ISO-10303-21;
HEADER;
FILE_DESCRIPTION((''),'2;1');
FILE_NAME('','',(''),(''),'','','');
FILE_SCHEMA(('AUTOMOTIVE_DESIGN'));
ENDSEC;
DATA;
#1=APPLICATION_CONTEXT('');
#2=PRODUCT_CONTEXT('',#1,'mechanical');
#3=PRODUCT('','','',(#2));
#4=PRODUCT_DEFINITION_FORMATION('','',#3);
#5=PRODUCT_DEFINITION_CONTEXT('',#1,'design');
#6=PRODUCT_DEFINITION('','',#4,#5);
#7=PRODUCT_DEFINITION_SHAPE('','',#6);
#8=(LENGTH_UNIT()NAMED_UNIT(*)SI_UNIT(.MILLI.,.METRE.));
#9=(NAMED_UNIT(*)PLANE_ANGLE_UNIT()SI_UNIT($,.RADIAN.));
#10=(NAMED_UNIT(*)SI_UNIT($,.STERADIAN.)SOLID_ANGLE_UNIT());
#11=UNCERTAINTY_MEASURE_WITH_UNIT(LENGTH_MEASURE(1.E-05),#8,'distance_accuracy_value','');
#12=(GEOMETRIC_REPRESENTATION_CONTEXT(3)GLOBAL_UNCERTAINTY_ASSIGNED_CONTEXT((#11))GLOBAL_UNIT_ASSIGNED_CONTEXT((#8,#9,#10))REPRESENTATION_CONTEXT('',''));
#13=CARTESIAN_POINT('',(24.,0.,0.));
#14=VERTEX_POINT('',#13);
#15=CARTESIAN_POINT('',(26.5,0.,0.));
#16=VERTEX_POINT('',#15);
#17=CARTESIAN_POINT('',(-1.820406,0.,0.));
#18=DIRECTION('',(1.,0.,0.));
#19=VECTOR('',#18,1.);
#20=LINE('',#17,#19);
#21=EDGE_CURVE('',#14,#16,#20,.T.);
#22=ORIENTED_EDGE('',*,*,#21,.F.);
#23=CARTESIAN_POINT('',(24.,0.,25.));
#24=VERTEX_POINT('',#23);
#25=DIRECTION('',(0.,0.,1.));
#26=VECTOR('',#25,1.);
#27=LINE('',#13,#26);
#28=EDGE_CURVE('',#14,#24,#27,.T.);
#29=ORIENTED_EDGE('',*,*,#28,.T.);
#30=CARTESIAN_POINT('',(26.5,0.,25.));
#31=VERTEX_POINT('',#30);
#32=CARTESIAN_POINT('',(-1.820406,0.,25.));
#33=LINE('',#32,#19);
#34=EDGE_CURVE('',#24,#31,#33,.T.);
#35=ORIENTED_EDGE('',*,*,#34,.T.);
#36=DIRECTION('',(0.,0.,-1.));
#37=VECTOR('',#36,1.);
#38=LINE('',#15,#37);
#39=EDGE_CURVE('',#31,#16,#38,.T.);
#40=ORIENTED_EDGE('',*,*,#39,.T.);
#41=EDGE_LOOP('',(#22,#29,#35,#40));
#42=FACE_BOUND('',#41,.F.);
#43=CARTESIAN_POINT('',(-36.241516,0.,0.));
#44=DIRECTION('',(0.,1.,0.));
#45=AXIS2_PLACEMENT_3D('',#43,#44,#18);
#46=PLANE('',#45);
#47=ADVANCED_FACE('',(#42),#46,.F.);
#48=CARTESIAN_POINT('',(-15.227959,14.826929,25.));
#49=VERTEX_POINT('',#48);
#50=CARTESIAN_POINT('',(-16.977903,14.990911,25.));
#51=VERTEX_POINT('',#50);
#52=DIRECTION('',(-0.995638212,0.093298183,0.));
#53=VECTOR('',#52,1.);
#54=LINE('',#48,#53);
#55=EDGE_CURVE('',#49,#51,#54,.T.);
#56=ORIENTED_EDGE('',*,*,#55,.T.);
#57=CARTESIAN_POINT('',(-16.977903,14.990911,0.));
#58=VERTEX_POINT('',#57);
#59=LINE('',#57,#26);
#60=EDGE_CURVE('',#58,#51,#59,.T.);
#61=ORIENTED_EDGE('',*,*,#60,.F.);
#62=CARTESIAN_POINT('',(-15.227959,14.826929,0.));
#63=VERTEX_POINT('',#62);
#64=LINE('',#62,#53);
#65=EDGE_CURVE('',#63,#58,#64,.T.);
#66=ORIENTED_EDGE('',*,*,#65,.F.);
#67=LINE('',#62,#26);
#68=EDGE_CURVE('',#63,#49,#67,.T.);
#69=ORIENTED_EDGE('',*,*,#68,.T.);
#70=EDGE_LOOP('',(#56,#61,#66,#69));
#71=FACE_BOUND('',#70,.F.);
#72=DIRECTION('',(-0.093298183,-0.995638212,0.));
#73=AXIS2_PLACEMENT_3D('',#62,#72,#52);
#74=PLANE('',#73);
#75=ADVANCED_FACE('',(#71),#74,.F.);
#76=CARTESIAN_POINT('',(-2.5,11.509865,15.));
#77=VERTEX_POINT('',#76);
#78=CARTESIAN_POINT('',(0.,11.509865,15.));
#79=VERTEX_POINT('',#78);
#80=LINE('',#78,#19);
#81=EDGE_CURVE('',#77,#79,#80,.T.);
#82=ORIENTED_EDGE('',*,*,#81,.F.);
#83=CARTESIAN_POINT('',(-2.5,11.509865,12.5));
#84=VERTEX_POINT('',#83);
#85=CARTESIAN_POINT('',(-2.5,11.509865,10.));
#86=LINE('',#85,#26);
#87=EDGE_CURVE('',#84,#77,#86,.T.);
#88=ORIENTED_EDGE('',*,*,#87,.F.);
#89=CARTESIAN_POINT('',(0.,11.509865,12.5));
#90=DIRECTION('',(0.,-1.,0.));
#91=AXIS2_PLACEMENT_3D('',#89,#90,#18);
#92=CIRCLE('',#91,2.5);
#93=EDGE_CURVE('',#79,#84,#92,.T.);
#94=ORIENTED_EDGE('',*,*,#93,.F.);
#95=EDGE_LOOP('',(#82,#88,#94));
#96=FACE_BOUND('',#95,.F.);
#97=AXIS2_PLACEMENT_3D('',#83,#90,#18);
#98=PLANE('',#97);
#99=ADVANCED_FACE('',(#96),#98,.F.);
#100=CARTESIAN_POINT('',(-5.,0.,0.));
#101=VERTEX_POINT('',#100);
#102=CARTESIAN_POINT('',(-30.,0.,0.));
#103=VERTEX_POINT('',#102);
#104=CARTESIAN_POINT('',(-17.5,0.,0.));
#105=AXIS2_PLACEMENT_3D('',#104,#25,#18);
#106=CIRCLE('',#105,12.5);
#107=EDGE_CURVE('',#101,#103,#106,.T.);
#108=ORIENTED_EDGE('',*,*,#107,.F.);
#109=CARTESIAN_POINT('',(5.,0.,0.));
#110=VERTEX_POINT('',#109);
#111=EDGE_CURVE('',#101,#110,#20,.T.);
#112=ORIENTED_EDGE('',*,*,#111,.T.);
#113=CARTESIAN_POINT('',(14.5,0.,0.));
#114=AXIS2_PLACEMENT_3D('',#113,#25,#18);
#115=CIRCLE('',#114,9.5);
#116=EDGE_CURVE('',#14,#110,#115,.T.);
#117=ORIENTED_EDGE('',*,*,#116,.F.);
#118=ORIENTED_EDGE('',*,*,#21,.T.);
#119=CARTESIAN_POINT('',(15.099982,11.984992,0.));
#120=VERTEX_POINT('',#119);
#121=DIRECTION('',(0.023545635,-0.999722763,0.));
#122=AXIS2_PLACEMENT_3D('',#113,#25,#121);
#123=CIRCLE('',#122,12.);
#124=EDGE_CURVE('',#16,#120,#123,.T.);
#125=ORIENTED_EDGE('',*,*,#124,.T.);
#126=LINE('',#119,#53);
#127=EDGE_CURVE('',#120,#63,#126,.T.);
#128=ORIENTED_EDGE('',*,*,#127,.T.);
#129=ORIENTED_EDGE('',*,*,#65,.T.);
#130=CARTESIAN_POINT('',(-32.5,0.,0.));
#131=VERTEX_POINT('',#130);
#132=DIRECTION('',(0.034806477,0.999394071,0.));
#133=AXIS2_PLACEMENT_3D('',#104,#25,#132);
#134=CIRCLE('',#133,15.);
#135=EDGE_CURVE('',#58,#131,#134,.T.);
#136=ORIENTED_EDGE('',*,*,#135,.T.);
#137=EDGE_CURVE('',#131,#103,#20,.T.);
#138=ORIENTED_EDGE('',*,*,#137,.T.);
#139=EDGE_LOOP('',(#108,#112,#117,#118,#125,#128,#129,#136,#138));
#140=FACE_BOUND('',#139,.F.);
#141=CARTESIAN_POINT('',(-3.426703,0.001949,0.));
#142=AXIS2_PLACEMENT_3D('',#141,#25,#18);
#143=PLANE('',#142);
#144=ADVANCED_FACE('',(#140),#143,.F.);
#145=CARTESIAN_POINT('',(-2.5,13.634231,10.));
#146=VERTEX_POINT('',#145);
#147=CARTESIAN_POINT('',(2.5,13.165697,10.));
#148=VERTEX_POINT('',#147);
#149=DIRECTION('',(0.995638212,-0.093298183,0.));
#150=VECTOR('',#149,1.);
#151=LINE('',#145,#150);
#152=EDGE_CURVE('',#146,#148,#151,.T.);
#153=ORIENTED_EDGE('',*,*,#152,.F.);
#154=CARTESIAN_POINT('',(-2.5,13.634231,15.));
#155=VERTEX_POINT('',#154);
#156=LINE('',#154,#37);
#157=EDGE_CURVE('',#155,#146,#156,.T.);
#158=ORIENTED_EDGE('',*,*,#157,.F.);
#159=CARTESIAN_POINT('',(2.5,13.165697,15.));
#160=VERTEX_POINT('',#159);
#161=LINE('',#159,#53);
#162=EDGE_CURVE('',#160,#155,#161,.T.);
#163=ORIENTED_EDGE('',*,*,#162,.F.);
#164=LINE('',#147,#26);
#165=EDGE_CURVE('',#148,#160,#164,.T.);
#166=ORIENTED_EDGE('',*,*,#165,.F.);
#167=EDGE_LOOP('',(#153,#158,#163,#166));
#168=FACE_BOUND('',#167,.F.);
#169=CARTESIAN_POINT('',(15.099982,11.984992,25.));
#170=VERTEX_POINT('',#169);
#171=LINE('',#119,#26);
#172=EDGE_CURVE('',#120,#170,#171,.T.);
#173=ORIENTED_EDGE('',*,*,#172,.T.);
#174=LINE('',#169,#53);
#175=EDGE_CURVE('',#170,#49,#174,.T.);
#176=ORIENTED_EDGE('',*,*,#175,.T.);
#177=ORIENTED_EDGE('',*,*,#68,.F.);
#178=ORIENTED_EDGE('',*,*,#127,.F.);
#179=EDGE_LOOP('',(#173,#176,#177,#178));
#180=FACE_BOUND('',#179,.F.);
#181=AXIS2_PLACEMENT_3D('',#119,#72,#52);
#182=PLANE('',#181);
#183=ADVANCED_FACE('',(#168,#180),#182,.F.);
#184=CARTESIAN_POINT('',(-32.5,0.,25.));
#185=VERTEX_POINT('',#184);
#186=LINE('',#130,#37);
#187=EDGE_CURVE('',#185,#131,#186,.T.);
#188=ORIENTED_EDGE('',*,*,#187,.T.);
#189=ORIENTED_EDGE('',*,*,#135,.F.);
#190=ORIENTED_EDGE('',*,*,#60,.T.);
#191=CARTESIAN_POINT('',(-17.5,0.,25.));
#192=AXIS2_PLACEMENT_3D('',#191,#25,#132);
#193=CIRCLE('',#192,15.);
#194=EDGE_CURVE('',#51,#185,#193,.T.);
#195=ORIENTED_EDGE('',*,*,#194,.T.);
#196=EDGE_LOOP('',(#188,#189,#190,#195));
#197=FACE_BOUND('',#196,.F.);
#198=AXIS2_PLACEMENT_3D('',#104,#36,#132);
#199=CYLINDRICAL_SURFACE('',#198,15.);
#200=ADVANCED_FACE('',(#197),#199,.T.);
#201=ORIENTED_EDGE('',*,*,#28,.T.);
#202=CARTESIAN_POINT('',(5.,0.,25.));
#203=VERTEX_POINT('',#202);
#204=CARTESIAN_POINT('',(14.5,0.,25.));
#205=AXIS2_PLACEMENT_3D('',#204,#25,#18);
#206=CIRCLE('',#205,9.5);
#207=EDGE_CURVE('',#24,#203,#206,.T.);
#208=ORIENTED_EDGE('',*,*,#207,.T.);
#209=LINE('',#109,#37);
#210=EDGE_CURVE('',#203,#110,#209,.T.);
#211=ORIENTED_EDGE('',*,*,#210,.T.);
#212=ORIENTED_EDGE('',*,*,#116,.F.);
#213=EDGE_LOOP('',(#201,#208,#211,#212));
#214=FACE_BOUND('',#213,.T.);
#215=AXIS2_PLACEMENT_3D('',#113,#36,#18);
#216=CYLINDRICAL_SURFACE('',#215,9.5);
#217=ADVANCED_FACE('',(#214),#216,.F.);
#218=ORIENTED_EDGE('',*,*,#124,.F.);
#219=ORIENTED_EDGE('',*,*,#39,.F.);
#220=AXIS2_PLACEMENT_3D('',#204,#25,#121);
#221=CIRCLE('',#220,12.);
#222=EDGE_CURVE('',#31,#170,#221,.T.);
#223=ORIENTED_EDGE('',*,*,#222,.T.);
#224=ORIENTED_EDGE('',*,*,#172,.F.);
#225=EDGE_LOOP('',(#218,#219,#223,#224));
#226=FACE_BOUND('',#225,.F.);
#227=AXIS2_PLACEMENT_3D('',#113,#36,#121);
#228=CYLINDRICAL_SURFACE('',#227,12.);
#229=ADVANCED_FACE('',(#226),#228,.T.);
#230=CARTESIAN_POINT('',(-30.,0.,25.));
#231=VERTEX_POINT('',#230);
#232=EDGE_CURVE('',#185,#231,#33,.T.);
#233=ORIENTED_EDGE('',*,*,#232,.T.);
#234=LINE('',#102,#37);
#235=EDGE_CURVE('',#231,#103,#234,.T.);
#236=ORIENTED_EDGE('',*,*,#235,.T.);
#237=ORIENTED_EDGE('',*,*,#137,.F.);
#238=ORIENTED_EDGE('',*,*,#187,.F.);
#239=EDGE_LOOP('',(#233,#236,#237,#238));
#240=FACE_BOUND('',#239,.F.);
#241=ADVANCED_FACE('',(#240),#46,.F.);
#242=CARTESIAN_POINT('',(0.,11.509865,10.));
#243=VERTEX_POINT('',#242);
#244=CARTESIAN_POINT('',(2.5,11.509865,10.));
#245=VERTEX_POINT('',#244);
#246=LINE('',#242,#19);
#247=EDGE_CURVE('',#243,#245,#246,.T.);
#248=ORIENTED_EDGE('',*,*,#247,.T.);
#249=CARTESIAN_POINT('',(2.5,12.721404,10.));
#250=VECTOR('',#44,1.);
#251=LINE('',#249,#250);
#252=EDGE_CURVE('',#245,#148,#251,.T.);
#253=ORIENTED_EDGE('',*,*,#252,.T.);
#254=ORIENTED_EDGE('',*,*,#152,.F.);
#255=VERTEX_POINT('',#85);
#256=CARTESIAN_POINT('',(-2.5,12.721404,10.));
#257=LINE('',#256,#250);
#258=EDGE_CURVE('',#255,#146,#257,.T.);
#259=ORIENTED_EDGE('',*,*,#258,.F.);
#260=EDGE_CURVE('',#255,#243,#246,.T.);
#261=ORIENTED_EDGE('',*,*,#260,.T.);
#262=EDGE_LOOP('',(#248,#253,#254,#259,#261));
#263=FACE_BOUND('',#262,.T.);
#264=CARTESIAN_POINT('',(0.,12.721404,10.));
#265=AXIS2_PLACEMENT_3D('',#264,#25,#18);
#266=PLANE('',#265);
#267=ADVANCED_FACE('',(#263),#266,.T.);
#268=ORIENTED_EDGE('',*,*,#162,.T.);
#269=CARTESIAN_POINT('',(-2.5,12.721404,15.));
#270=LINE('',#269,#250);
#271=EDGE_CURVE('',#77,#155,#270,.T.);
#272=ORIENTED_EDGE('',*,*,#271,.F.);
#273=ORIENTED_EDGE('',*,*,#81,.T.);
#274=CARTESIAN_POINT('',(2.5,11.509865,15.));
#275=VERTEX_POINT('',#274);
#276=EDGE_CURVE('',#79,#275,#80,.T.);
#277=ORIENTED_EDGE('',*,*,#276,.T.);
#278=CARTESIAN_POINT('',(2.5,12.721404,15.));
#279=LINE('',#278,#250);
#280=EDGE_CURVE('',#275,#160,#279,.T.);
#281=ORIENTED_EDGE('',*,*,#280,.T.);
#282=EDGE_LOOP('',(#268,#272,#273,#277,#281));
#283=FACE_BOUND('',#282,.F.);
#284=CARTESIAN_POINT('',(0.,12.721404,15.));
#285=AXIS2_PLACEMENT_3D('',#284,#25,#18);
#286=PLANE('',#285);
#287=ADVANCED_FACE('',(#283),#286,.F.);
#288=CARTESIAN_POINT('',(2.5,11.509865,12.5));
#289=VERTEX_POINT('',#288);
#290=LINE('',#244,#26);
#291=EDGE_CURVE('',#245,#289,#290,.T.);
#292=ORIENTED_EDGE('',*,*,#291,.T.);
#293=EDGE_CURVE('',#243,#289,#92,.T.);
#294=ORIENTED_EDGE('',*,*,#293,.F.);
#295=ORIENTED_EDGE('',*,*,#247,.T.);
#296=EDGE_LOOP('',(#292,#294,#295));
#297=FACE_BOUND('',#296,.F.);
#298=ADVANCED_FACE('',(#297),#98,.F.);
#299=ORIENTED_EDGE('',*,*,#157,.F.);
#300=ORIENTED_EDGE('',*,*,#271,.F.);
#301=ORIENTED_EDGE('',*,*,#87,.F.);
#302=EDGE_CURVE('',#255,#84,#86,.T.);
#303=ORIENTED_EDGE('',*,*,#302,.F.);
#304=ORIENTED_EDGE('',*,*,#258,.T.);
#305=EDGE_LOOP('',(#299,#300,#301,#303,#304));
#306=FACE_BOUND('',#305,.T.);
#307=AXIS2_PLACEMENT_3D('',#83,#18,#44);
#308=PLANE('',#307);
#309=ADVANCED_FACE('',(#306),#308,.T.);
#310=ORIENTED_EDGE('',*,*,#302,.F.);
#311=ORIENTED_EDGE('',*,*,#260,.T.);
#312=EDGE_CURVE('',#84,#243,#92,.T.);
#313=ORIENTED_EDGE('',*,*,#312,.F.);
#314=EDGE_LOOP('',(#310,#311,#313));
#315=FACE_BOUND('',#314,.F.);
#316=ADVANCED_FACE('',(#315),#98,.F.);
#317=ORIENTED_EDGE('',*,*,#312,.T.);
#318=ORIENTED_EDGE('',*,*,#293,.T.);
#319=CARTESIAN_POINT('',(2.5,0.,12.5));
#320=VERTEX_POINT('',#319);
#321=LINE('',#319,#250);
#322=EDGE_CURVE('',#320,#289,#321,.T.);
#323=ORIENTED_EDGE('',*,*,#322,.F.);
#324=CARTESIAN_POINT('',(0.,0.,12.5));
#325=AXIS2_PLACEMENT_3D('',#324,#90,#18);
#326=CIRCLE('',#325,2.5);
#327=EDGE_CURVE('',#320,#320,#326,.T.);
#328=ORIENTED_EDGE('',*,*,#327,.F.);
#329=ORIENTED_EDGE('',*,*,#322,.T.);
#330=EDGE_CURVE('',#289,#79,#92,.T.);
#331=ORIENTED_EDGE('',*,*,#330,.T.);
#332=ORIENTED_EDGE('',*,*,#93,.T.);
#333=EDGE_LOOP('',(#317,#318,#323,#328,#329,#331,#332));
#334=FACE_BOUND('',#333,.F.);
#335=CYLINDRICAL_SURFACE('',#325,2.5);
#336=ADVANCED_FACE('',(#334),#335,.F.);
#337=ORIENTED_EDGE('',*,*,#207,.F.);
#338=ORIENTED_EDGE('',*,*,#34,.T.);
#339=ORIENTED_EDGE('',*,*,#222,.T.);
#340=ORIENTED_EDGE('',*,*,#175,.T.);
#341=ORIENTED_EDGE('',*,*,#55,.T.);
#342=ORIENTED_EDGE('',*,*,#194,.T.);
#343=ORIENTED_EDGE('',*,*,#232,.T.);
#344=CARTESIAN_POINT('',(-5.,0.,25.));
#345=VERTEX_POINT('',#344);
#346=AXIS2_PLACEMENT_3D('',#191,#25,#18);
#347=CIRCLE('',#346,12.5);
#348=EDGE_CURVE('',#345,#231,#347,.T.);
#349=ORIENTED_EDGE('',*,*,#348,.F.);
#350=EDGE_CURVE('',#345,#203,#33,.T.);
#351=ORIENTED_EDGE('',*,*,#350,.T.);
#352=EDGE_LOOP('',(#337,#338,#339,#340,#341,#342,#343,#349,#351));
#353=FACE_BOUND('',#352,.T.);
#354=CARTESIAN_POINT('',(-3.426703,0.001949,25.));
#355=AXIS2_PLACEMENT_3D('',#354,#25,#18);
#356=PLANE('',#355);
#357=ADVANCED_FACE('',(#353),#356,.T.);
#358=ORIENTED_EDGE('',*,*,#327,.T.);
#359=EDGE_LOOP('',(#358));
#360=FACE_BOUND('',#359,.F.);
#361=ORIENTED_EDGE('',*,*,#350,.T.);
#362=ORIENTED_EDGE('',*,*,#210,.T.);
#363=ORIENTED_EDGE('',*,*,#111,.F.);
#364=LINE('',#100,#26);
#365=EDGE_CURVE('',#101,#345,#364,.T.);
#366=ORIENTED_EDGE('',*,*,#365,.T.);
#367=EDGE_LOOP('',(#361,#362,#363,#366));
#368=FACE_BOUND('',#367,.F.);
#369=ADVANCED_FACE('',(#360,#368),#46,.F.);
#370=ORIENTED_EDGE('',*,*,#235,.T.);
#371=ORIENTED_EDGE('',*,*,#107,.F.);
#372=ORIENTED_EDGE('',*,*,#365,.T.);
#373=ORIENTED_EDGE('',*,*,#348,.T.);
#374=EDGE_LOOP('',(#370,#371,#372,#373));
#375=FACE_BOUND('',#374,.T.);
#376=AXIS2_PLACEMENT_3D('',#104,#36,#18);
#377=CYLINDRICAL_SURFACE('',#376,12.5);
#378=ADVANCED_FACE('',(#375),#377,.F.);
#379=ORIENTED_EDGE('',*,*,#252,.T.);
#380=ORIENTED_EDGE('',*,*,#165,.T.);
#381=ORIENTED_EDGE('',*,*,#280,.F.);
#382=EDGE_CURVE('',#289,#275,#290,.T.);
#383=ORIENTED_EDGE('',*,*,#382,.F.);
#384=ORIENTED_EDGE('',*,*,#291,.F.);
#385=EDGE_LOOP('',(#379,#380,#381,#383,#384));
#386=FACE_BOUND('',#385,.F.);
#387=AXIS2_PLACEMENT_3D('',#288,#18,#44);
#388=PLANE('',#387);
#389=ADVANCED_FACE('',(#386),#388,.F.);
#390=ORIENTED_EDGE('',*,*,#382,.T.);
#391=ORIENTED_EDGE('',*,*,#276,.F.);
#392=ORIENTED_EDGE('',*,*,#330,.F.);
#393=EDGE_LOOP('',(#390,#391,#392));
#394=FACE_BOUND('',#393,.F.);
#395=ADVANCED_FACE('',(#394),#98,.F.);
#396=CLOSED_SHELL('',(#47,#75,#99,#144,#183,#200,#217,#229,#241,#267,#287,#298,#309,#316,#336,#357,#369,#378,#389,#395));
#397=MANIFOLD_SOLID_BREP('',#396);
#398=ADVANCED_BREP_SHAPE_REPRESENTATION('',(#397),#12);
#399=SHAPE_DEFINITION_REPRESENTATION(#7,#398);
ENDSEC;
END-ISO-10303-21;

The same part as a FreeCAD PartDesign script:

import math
import FreeCAD as App
import Part
import Sketcher
from FreeCAD import Vector


def add_polygon(sketch, points):
    """Adds a closed chain of lines whose ends are joined by coincident constraints."""
    first, n = sketch.GeometryCount, len(points)
    for a, b in zip(points, points[1:] + points[:1]):
        sketch.addGeometry(Part.LineSegment(App.Vector(*a, 0), App.Vector(*b, 0)), False)
    for i in range(n):
        sketch.addConstraint(Sketcher.Constraint("Coincident", first + i, 2, first + (i + 1) % n, 1))

doc = App.newDocument("Part")
body = doc.addObject("PartDesign::Body", "Body")

# Sketch on XY plane
sketch1 = body.newObject("Sketcher::SketchObject", "Sketch")
sketch1.AttachmentSupport = (doc.getObject("XY_Plane"), [""])
sketch1.MapMode = "FlatFace"
sketch1.addGeometry(Part.LineSegment(Vector(15.099982, 11.984992, 0), Vector(-15.227959, 14.826929, 0)), False)
sketch1.addGeometry(Part.LineSegment(Vector(-15.227959, 14.826929, 0), Vector(-16.977903, 14.990911, 0)), False)
sketch1.addGeometry(Part.ArcOfCircle(Part.Circle(Vector(-17.5, 0, 0), Vector(0, 0, 1), 15), math.radians(88.005333), math.radians(268.44623)), False)
sketch1.addGeometry(Part.LineSegment(Vector(-17.906726, -14.994485, 0), Vector(-14.372817, -14.670403, 0)), False)
sketch1.addGeometry(Part.LineSegment(Vector(-14.372817, -14.670403, 0), Vector(14.782548, -11.996673, 0)), False)
sketch1.addGeometry(Part.ArcOfCircle(Part.Circle(Vector(14.5, 0, 0), Vector(0, 0, 1), 12), math.radians(-88.65081), math.radians(87.134104)), False)
sketch1.addGeometry(Part.Circle(Vector(-17.5, 0, 0), Vector(0, 0, 1), 12.5), False)
sketch1.addGeometry(Part.Circle(Vector(14.5, 0, 0), Vector(0, 0, 1), 9.5), False)
sketch1.addConstraint(Sketcher.Constraint("Coincident", 0, 2, 1, 1))
sketch1.addConstraint(Sketcher.Constraint("Coincident", 1, 2, 2, 1))
sketch1.addConstraint(Sketcher.Constraint("Coincident", 2, 2, 3, 1))
sketch1.addConstraint(Sketcher.Constraint("Coincident", 3, 2, 4, 1))
sketch1.addConstraint(Sketcher.Constraint("Coincident", 4, 2, 5, 1))
sketch1.addConstraint(Sketcher.Constraint("Coincident", 5, 2, 0, 1))
sketch1.addConstraint(Sketcher.Constraint("Coincident", 6, 3, 2, 3))
sketch1.addConstraint(Sketcher.Constraint("Coincident", 7, 3, 5, 3))
sketch1.addConstraint(Sketcher.Constraint("PointOnObject", 2, 3, -1))
sketch1.addConstraint(Sketcher.Constraint("PointOnObject", 5, 3, -1))
sketch1.addConstraint(Sketcher.Constraint("Diameter", 6, 25.0))
sketch1.addConstraint(Sketcher.Constraint("Diameter", 7, 19.0))
sketch1.addConstraint(Sketcher.Constraint("Radius", 2, 15.0))
sketch1.addConstraint(Sketcher.Constraint("Radius", 5, 12.0))
sketch1.addConstraint(Sketcher.Constraint("DistanceX", 2, 3, 5, 3, 32.0))
sketch1.addConstraint(Sketcher.Constraint("DistanceX", 2, 3, -1, 1, 17.5))
sketch1.addConstraint(Sketcher.Constraint("Distance", 1, 1.75761))
sketch1.addConstraint(Sketcher.Constraint("DistanceX", 0, 2, -1, 1, 15.227959))
sketch1.addConstraint(Sketcher.Constraint("DistanceY", -1, 1, 0, 2, 14.826929))
sketch1.addConstraint(Sketcher.Constraint("DistanceX", -1, 1, 5, 2, 15.099982))
sketch1.addConstraint(Sketcher.Constraint("DistanceX", 2, 2, 3, 2, 3.533909))
sketch1.addConstraint(Sketcher.Constraint("DistanceY", 2, 2, 3, 2, 0.324082))
sketch1.addConstraint(Sketcher.Constraint("DistanceX", 0, 2, 3, 2, 0.855142))
sketch1.addConstraint(Sketcher.Constraint("DistanceY", 3, 2, 4, 2, 2.67373))
pad1 = body.newObject("PartDesign::Pad", "Pad")
pad1.Profile = sketch1
pad1.Length = 25

# Sketch on XY plane
sketch2 = body.newObject("Sketcher::SketchObject", "Sketch001")
sketch2.AttachmentSupport = (doc.getObject("XY_Plane"), [""])
sketch2.MapMode = "FlatFace"
add_polygon(sketch2, [(-36, 0), (-36, -16), (33, -16), (33, 0)])  # lines 0-3
sketch2.addConstraint(Sketcher.Constraint("Vertical", 0))
sketch2.addConstraint(Sketcher.Constraint("Horizontal", 1))
sketch2.addConstraint(Sketcher.Constraint("Vertical", 2))
sketch2.addConstraint(Sketcher.Constraint("Horizontal", 3))
sketch2.addConstraint(Sketcher.Constraint("PointOnObject", 2, 2, -1))
sketch2.addConstraint(Sketcher.Constraint("DistanceX", 1, 1, 1, 2, 68.842221))
sketch2.addConstraint(Sketcher.Constraint("DistanceY", 0, 2, 0, 1, 15.526487))
sketch2.addConstraint(Sketcher.Constraint("DistanceX", 0, 2, -1, 1, 36.241516))
pocket1 = body.newObject("PartDesign::Pocket", "Pocket")
pocket1.Profile = sketch2
pocket1.Length = 25
pocket1.Reversed = True

# Sketch on XZ plane
sketch3 = body.newObject("Sketcher::SketchObject", "Sketch002")
sketch3.AttachmentSupport = (doc.getObject("XZ_Plane"), [""])
sketch3.MapMode = "FlatFace"
sketch3.addGeometry(Part.Circle(Vector(0, 12.5, 0), Vector(0, 0, 1), 2.5), False)
sketch3.addConstraint(Sketcher.Constraint("PointOnObject", 0, 3, -2))
sketch3.addConstraint(Sketcher.Constraint("Diameter", 0, 5.0))
sketch3.addConstraint(Sketcher.Constraint("DistanceY", -1, 1, 0, 3, 12.5))
pocket2 = body.newObject("PartDesign::Pocket", "Pocket001")
pocket2.Profile = sketch3
pocket2.Length = 25

# Sketch on XY plane
sketch4 = body.newObject("Sketcher::SketchObject", "Sketch003")
sketch4.AttachmentSupport = (doc.getObject("XY_Plane"), [""])
sketch4.MapMode = "FlatFace"
sketch4.AttachmentOffset = App.Placement(Vector(0, 0, 12.5), App.Rotation())
add_polygon(sketch4, [(-2.5, 13.9), (-2.5, 11.5), (2.5, 11.5), (2.5, 13.9)])  # lines 0-3
sketch4.addConstraint(Sketcher.Constraint("Vertical", 0))
sketch4.addConstraint(Sketcher.Constraint("Horizontal", 1))
sketch4.addConstraint(Sketcher.Constraint("Vertical", 2))
sketch4.addConstraint(Sketcher.Constraint("Horizontal", 3))
sketch4.addConstraint(Sketcher.Constraint("DistanceX", 1, 1, 1, 2, 5.0))
sketch4.addConstraint(Sketcher.Constraint("DistanceX", 0, 2, -1, 1, 2.5))
sketch4.addConstraint(Sketcher.Constraint("DistanceY", 0, 2, 0, 1, 2.423077))
sketch4.addConstraint(Sketcher.Constraint("DistanceY", -1, 1, 0, 2, 11.509865))
pocket3 = body.newObject("PartDesign::Pocket", "Pocket002")
pocket3.Profile = sketch4
pocket3.Length = 5
pocket3.Midplane = True

doc.recompute()
